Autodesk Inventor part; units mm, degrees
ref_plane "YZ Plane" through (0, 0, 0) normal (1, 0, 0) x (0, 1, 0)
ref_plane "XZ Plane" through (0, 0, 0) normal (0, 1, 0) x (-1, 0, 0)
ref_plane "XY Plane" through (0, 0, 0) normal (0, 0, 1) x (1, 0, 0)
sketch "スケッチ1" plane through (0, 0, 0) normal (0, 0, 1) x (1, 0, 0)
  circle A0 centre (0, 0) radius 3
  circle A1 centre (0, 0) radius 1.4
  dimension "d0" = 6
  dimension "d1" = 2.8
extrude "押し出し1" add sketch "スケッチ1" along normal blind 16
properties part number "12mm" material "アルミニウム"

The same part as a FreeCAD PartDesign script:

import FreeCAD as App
import Part
import Sketcher
Q = App.Units.Quantity

doc = App.newDocument("Part")
body = doc.addObject("PartDesign::Body", "Body")

# Sketch on XY plane
sketch1 = body.newObject("Sketcher::SketchObject", "Sketch")
sketch1.AttachmentSupport = (doc.getObject("XY_Plane"), [""])
sketch1.MapMode = "FlatFace"
sketch1.addGeometry([
    Part.Circle(App.Vector(0, 0, 0), App.Vector(0, 0, 1), 3),
    Part.Circle(App.Vector(0, 0, 0), App.Vector(0, 0, 1), 1.4),
], False)
sketch1.addConstraint([
    Sketcher.Constraint("Coincident", 0, 3, -1, 1),
    Sketcher.Constraint("Coincident", 1, 3, -1, 1),
    Sketcher.Constraint("Diameter", 0, Q("6 mm")),
    Sketcher.Constraint("Diameter", 1, Q("2.8 mm")),
])
pad1 = body.newObject("PartDesign::Pad", "Pad")
pad1.Profile = sketch1
pad1.Length = 16

doc.recompute()
